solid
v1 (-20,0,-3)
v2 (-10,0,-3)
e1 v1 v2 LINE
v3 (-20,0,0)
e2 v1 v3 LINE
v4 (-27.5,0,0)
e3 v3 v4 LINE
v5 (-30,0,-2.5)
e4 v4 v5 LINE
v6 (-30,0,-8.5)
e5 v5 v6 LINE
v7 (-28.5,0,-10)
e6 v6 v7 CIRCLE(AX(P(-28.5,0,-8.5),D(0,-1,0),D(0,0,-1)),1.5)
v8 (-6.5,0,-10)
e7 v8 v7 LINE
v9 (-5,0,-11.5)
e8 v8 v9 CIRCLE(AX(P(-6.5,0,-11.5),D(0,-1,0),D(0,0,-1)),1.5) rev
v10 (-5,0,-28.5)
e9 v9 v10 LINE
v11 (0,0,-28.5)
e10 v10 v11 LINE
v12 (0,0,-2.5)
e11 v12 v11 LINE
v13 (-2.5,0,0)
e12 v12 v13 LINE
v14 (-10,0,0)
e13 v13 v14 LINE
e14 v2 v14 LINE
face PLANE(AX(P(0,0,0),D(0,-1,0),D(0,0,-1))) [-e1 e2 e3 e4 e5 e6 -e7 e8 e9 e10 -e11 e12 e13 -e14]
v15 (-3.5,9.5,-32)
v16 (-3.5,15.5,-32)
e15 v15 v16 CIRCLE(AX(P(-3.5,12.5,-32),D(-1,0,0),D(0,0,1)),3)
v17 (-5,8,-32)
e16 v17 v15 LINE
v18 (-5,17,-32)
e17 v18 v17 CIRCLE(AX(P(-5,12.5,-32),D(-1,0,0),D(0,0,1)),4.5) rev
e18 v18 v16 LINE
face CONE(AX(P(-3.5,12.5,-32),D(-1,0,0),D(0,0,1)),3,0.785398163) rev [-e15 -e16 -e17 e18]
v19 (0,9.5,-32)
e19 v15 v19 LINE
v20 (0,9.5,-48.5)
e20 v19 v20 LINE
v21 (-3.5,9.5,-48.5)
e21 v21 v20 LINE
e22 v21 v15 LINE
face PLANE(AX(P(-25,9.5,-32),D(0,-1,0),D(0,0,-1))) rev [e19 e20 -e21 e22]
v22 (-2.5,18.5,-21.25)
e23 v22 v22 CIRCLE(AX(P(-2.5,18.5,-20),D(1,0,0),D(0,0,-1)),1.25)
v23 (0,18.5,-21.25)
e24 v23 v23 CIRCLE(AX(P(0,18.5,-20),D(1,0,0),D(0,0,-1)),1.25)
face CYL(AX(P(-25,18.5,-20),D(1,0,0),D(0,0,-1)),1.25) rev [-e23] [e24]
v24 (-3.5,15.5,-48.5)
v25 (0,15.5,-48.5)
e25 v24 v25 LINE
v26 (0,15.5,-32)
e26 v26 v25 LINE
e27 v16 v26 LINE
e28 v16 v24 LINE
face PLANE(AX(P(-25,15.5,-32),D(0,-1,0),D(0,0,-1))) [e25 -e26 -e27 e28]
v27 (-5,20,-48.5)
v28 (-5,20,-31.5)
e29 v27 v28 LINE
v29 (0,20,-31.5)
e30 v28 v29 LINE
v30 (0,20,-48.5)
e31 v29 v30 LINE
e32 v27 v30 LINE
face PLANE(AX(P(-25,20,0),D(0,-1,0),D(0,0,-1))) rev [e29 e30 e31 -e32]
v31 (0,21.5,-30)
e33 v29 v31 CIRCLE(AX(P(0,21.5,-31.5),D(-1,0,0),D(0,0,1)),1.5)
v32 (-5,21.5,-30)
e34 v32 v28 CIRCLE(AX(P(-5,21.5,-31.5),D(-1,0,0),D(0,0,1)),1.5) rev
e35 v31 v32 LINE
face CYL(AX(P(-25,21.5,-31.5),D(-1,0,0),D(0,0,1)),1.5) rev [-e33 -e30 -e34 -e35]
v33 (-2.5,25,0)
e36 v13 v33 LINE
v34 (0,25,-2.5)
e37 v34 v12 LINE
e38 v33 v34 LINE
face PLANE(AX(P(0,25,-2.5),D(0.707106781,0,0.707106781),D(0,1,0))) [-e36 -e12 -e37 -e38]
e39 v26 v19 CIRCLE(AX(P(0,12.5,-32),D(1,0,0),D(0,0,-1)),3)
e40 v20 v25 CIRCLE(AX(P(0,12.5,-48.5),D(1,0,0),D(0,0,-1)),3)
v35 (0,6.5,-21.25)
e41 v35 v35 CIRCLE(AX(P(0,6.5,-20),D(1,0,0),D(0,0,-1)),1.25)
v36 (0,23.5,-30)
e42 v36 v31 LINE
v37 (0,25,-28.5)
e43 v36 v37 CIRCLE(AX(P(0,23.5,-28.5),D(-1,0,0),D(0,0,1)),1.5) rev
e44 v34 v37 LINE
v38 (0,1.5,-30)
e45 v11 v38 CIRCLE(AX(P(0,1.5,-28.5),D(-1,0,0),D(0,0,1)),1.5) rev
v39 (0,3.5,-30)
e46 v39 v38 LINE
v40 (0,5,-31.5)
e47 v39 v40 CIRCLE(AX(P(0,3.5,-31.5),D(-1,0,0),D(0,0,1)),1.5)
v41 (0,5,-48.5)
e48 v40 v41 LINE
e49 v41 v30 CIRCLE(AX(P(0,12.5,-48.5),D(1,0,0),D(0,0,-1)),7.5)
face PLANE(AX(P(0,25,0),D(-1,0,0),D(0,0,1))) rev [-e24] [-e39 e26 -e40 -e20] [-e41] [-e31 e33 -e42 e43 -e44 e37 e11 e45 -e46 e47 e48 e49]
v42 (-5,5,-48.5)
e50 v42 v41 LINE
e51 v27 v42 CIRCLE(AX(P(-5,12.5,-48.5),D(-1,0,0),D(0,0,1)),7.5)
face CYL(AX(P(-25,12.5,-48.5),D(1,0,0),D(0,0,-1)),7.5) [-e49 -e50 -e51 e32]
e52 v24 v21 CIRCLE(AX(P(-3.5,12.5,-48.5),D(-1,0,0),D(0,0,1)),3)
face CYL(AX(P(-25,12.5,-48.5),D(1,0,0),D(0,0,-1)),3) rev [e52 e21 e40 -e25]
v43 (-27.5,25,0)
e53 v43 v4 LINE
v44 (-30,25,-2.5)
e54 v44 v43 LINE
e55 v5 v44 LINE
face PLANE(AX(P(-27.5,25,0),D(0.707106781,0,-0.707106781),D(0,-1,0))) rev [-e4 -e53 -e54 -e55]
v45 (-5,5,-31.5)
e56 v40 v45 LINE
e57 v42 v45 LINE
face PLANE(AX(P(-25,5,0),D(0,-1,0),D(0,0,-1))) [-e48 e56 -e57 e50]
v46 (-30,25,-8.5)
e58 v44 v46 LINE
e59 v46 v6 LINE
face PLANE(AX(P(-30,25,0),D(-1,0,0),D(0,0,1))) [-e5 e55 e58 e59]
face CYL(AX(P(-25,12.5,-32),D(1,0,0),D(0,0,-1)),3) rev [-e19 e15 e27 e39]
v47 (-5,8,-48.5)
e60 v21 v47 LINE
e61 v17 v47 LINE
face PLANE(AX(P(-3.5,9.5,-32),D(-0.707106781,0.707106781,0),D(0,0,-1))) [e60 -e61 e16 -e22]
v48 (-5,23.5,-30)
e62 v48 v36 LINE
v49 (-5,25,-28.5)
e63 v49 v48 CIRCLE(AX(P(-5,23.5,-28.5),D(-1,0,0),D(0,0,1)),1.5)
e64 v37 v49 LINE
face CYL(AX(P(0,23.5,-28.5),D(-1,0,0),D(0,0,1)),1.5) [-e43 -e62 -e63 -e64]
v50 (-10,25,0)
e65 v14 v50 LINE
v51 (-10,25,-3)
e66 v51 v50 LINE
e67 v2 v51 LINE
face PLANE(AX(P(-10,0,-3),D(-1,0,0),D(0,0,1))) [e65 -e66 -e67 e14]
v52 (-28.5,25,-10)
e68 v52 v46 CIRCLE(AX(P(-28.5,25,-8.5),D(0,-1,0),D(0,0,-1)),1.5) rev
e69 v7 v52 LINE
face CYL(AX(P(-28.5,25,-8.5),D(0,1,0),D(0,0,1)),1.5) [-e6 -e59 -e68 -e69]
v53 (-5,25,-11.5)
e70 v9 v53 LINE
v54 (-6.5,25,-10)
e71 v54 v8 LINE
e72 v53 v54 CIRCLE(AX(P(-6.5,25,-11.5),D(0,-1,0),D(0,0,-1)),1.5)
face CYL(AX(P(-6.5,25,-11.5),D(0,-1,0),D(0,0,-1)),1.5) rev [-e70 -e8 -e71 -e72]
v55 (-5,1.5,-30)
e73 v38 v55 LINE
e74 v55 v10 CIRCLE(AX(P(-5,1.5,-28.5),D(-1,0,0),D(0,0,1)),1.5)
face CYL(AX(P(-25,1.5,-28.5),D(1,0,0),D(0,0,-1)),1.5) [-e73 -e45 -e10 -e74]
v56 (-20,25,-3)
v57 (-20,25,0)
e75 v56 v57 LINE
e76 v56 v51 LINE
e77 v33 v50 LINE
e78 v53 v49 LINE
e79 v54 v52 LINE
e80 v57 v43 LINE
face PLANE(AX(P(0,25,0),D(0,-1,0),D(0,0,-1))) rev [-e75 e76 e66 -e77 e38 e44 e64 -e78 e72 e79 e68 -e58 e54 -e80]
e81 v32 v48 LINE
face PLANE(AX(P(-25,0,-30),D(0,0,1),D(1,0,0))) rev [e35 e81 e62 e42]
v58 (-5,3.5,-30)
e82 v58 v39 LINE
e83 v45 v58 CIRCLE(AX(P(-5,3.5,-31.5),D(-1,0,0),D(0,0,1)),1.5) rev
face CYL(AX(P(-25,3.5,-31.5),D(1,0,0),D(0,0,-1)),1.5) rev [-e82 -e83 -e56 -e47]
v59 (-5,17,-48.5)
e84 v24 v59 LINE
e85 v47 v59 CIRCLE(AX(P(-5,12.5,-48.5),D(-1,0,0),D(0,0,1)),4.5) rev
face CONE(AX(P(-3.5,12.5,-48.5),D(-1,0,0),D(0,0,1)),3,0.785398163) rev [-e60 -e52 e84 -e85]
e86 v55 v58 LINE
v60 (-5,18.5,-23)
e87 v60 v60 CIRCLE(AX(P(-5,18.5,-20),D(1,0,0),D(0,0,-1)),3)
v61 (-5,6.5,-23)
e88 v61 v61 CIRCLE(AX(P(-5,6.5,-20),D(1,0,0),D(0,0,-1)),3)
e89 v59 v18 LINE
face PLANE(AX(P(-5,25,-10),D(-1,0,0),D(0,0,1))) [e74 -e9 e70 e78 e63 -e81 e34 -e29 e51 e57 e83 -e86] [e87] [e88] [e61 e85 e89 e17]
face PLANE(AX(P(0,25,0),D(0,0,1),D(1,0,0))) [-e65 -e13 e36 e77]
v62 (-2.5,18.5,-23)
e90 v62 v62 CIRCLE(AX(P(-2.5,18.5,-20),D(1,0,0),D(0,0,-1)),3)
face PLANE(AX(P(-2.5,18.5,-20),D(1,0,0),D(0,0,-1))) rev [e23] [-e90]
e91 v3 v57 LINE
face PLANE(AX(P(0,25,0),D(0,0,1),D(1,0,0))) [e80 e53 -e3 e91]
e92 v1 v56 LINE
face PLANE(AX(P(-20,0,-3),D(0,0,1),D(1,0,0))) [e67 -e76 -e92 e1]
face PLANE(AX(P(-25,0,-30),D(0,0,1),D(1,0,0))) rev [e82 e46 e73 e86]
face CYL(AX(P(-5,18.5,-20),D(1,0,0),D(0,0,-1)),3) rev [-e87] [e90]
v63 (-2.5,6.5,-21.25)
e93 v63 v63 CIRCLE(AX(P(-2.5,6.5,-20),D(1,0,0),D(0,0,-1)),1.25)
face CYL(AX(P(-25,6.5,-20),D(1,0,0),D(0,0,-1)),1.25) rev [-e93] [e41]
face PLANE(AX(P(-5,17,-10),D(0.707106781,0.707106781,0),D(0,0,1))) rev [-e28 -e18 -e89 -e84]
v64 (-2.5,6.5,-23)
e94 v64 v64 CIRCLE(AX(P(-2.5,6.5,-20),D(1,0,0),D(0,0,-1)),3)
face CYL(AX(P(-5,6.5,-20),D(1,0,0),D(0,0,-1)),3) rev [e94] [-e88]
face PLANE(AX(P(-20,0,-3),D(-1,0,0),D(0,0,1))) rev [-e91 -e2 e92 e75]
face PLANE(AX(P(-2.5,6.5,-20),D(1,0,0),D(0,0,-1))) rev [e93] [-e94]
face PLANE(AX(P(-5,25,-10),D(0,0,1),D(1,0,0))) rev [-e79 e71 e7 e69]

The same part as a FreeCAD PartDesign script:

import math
import FreeCAD as App
import Part
import Sketcher
from FreeCAD import Vector
Q = App.Units.Quantity


def edges_at(feature, points):
    """Names of the edges that pass closest to the given points."""
    edges = feature.Shape.Edges
    near = lambda p: min(range(len(edges)), key=lambda i: edges[i].distToShape(Part.Vertex(*p))[0])
    return sorted({f"Edge{near(p) + 1}" for p in points})


def add_polygon(sketch, points):
    """Adds a closed chain of lines whose ends are joined by coincident constraints."""
    first, n = sketch.GeometryCount, len(points)
    for a, b in zip(points, points[1:] + points[:1]):
        sketch.addGeometry(Part.LineSegment(App.Vector(*a, 0), App.Vector(*b, 0)), False)
    for i in range(n):
        sketch.addConstraint(Sketcher.Constraint("Coincident", first + i, 2, first + (i + 1) % n, 1))

doc = App.newDocument("Part")
body = doc.addObject("PartDesign::Body", "Body")

sketch1 = body.newObject("Sketcher::SketchObject", "Sketch")
sketch1.AttachmentSupport = (doc.getObject("XZ_Plane"), [""])
sketch1.MapMode = "FlatFace"
add_polygon(sketch1, [(-30, 0), (0, 0), (0, -56), (-5, -56), (-5, -10), (-30, -10)])
sketch1.addConstraint([
    Sketcher.Constraint("Horizontal", 0),
    Sketcher.Constraint("Vertical", 1),
    Sketcher.Constraint("Horizontal", 2),
    Sketcher.Constraint("Vertical", 3),
    Sketcher.Constraint("Horizontal", 4),
    Sketcher.Constraint("Vertical", 5),
    Sketcher.Constraint("Coincident", 0, 2, -1, 1),
    Sketcher.Constraint("DistanceX", 0, 1, 0, 2, Q("30 mm")),
    Sketcher.Constraint("DistanceX", 2, 2, 2, 1, Q("5 mm")),
    Sketcher.Constraint("DistanceY", 1, 2, 1, 1, Q("56 mm")),
    Sketcher.Constraint("DistanceY", 3, 1, 3, 2, Q("46 mm")),
])
pad1 = body.newObject("PartDesign::Pad", "Pad")
pad1.Profile = sketch1
pad1.Length = 25
pad1.Reversed = True

sketch2 = body.newObject("Sketcher::SketchObject", "Sketch001")
sketch2.AttachmentSupport = (doc.getObject("YZ_Plane"), [""])
sketch2.MapMode = "FlatFace"
sketch2.addGeometry([
    Part.LineSegment(Vector(25, -30, 0), Vector(20, -30, 0)),
    Part.LineSegment(Vector(20, -30, 0), Vector(20, -48.5, 0)),
    Part.ArcOfCircle(Part.Circle(Vector(12.5, -48.5, 0), Vector(0, 0, 1), 7.5), math.radians(-90), math.radians(0)),
    Part.LineSegment(Vector(12.5, -56, 0), Vector(25, -56, 0)),
    Part.LineSegment(Vector(25, -56, 0), Vector(25, -30, 0)),
    Part.ArcOfCircle(Part.Circle(Vector(12.5, -48.5, 0), Vector(0, 0, 1), 7.5), math.radians(180), math.radians(270)),
    Part.LineSegment(Vector(5, -48.5, 0), Vector(5, -30, 0)),
    Part.LineSegment(Vector(5, -30, 0), Vector(0, -30, 0)),
    Part.LineSegment(Vector(0, -30, 0), Vector(0, -56, 0)),
    Part.LineSegment(Vector(0, -56, 0), Vector(12.5, -56, 0)),
], False)
sketch2.addConstraint([
    Sketcher.Constraint("Coincident", 0, 2, 1, 1),
    Sketcher.Constraint("Tangent", 1, 2, 2, 2),
    Sketcher.Constraint("Tangent", 2, 1, 3, 1),
    Sketcher.Constraint("Coincident", 3, 2, 4, 1),
    Sketcher.Constraint("Coincident", 4, 2, 0, 1),
    Sketcher.Constraint("Tangent", 5, 1, 6, 1),
    Sketcher.Constraint("Coincident", 6, 2, 7, 1),
    Sketcher.Constraint("Coincident", 7, 2, 8, 1),
    Sketcher.Constraint("Coincident", 8, 2, 9, 1),
    Sketcher.Constraint("Tangent", 9, 2, 5, 2),
    Sketcher.Constraint("Horizontal", 0),
    Sketcher.Constraint("Vertical", 1),
    Sketcher.Constraint("Horizontal", 3),
    Sketcher.Constraint("Vertical", 4),
    Sketcher.Constraint("Vertical", 6),
    Sketcher.Constraint("Horizontal", 7),
    Sketcher.Constraint("Vertical", 8),
    Sketcher.Constraint("Horizontal", 9),
    Sketcher.Constraint("Coincident", 5, 3, 2, 3),
    Sketcher.Constraint("Equal", 2, 5),
    Sketcher.Constraint("PointOnObject", 7, 2, -2),
    Sketcher.Constraint("Horizontal", 4, 2, 6, 2),
    Sketcher.Constraint("Equal", 0, 7),
    Sketcher.Constraint("Radius", 2, Q("7.5 mm")),
    Sketcher.Constraint("DistanceX", 0, 2, 0, 1, Q("5 mm")),
    Sketcher.Constraint("DistanceY", 4, 1, 4, 2, Q("26 mm")),
    Sketcher.Constraint("DistanceY", 0, 2, -1, 1, Q("30 mm")),
])
pocket1 = body.newObject("PartDesign::Pocket", "Pocket")
pocket1.Profile = sketch2
pocket1.Length = 25

sketch3 = body.newObject("Sketcher::SketchObject", "Sketch002")
sketch3.AttachmentSupport = (doc.getObject("YZ_Plane"), [""])
sketch3.MapMode = "FlatFace"
sketch3.addGeometry([
    Part.LineSegment(Vector(15.5, -48.5, 0), Vector(15.5, -32, 0)),
    Part.ArcOfCircle(Part.Circle(Vector(12.5, -32, 0), Vector(0, 0, 1), 3), math.radians(0), math.radians(180)),
    Part.LineSegment(Vector(9.5, -32, 0), Vector(9.5, -48.5, 0)),
    Part.ArcOfCircle(Part.Circle(Vector(12.5, -48.5, 0), Vector(0, 0, 1), 3), math.radians(180), math.radians(360)),
], False)
sketch3.addConstraint([
    Sketcher.Constraint("Tangent", 0, 2, 1, 1),
    Sketcher.Constraint("Tangent", 1, 2, 2, 1),
    Sketcher.Constraint("Tangent", 2, 2, 3, 1),
    Sketcher.Constraint("Tangent", 3, 2, 0, 1),
    Sketcher.Constraint("Vertical", 0),
    Sketcher.Constraint("Vertical", 2),
    Sketcher.Constraint("Radius", 1, Q("3 mm")),
    Sketcher.Constraint("DistanceY", 0, 1, 0, 2, Q("16.5 mm")),
    Sketcher.Constraint("DistanceY", 1, 3, -1, 1, Q("32 mm")),
    Sketcher.Constraint("DistanceX", -1, 1, 1, 3, Q("12.5 mm")),
])
pocket2 = body.newObject("PartDesign::Pocket", "Pocket001")
pocket2.Profile = sketch3
pocket2.Length = 25
doc.recompute()

fillet = body.newObject("PartDesign::Fillet", "Fillet")
fillet.Base = (pocket2, edges_at(pocket2, [
    (-2.5, 25, -30),
    (-2.5, 20, -30),
    (-2.5, 0, -30),
    (-2.5, 5, -30),
]))
fillet.Radius = 1.5

sketch4 = body.newObject("Sketcher::SketchObject", "Sketch003")
sketch4.AttachmentSupport = (doc.getObject("YZ_Plane"), [""])
sketch4.MapMode = "FlatFace"
sketch4.addGeometry([
    Part.Circle(Vector(18.5, -20, 0), Vector(0, 0, 1), 1.25),
    Part.Circle(Vector(6.5, -20, 0), Vector(0, 0, 1), 1.25),
], False)
sketch4.addConstraint([
    Sketcher.Constraint("Equal", 0, 1),
    Sketcher.Constraint("Horizontal", 0, 3, 1, 3),
    Sketcher.Constraint("Diameter", 0, Q("2.5 mm")),
    Sketcher.Constraint("DistanceY", 0, 3, -1, 1, Q("20 mm")),
    Sketcher.Constraint("DistanceX", 1, 3, 0, 3, Q("12 mm")),
    Sketcher.Constraint("DistanceX", -1, 1, 0, 3, Q("18.5 mm")),
])
pocket3 = body.newObject("PartDesign::Pocket", "Pocket002")
pocket3.Profile = sketch4
pocket3.Length = 25

sketch5 = body.newObject("Sketcher::SketchObject", "Sketch004")
sketch5.AttachmentSupport = (doc.getObject("YZ_Plane"), [""])
sketch5.MapMode = "FlatFace"
sketch5.AttachmentOffset = App.Placement(Vector(0, 0, -2.5), App.Rotation())
sketch5.addGeometry([
    Part.Circle(Vector(18.5, -20, 0), Vector(0, 0, 1), 3),
    Part.Circle(Vector(18.5, -20, 0), Vector(0, 0, 1), 1.25),
    Part.Circle(Vector(6.5, -20, 0), Vector(0, 0, 1), 3),
    Part.Circle(Vector(6.5, -20, 0), Vector(0, 0, 1), 1.25),
], False)
sketch5.addConstraint([
    Sketcher.Constraint("Coincident", 1, 3, 0, 3),
    Sketcher.Constraint("Coincident", 3, 3, 2, 3),
    Sketcher.Constraint("Equal", 0, 2),
    Sketcher.Constraint("Equal", 1, 3),
    Sketcher.Constraint("Horizontal", 1, 3, 2, 3),
    Sketcher.Constraint("Diameter", 0, Q("6 mm")),
    Sketcher.Constraint("Diameter", 1, Q("2.5 mm")),
    Sketcher.Constraint("DistanceY", 0, 3, -1, 1, Q("20 mm")),
    Sketcher.Constraint("DistanceX", 2, 3, 0, 3, Q("12 mm")),
    Sketcher.Constraint("DistanceX", -1, 1, 0, 3, Q("18.5 mm")),
])
pocket4 = body.newObject("PartDesign::Pocket", "Pocket003")
pocket4.Profile = sketch5
pocket4.Length = 2.5

sketch6 = body.newObject("Sketcher::SketchObject", "Sketch005")
sketch6.AttachmentSupport = (doc.getObject("XZ_Plane"), [""])
sketch6.MapMode = "FlatFace"
sketch6.AttachmentOffset = App.Placement(Vector(0, 0, -25), App.Rotation())
add_polygon(sketch6, [(-20, -3), (-20, 0), (-10, 0), (-10, -3)])
sketch6.addConstraint([
    Sketcher.Constraint("Vertical", 0),
    Sketcher.Constraint("Horizontal", 1),
    Sketcher.Constraint("Vertical", 2),
    Sketcher.Constraint("Horizontal", 3),
    Sketcher.Constraint("PointOnObject", 0, 2, -1),
    Sketcher.Constraint("DistanceX", 1, 1, 1, 2, Q("10 mm")),
    Sketcher.Constraint("DistanceY", 0, 1, 0, 2, Q("3 mm")),
    Sketcher.Constraint("DistanceX", 0, 2, -1, 1, Q("20 mm")),
])
pocket5 = body.newObject("PartDesign::Pocket", "Pocket004")
pocket5.Profile = sketch6
pocket5.Type = "ThroughAll"
pocket5.Reversed = True
doc.recompute()

chamfer = body.newObject("PartDesign::Chamfer", "Chamfer")
chamfer.Base = (pocket5, edges_at(pocket5, [(0, 12.5, 0), (-30, 12.5, 0)]))
chamfer.Size = 2.5
doc.recompute()

fillet2 = body.newObject("PartDesign::Fillet", "Fillet001")
fillet2.Base = (chamfer, edges_at(chamfer, [(-5, 12.5, -10), (-30, 12.5, -10)]))
fillet2.Radius = 1.5
doc.recompute()

chamfer2 = body.newObject("PartDesign::Chamfer", "Chamfer001")
chamfer2.Base = (fillet2, edges_at(fillet2, [
    (-5, 9.5, -40.25),
    (-5, 12.5, -51.5),
    (-5, 15.5, -40.25),
    (-5, 12.5, -29),
]))
chamfer2.Size = 1.5

doc.recompute()
